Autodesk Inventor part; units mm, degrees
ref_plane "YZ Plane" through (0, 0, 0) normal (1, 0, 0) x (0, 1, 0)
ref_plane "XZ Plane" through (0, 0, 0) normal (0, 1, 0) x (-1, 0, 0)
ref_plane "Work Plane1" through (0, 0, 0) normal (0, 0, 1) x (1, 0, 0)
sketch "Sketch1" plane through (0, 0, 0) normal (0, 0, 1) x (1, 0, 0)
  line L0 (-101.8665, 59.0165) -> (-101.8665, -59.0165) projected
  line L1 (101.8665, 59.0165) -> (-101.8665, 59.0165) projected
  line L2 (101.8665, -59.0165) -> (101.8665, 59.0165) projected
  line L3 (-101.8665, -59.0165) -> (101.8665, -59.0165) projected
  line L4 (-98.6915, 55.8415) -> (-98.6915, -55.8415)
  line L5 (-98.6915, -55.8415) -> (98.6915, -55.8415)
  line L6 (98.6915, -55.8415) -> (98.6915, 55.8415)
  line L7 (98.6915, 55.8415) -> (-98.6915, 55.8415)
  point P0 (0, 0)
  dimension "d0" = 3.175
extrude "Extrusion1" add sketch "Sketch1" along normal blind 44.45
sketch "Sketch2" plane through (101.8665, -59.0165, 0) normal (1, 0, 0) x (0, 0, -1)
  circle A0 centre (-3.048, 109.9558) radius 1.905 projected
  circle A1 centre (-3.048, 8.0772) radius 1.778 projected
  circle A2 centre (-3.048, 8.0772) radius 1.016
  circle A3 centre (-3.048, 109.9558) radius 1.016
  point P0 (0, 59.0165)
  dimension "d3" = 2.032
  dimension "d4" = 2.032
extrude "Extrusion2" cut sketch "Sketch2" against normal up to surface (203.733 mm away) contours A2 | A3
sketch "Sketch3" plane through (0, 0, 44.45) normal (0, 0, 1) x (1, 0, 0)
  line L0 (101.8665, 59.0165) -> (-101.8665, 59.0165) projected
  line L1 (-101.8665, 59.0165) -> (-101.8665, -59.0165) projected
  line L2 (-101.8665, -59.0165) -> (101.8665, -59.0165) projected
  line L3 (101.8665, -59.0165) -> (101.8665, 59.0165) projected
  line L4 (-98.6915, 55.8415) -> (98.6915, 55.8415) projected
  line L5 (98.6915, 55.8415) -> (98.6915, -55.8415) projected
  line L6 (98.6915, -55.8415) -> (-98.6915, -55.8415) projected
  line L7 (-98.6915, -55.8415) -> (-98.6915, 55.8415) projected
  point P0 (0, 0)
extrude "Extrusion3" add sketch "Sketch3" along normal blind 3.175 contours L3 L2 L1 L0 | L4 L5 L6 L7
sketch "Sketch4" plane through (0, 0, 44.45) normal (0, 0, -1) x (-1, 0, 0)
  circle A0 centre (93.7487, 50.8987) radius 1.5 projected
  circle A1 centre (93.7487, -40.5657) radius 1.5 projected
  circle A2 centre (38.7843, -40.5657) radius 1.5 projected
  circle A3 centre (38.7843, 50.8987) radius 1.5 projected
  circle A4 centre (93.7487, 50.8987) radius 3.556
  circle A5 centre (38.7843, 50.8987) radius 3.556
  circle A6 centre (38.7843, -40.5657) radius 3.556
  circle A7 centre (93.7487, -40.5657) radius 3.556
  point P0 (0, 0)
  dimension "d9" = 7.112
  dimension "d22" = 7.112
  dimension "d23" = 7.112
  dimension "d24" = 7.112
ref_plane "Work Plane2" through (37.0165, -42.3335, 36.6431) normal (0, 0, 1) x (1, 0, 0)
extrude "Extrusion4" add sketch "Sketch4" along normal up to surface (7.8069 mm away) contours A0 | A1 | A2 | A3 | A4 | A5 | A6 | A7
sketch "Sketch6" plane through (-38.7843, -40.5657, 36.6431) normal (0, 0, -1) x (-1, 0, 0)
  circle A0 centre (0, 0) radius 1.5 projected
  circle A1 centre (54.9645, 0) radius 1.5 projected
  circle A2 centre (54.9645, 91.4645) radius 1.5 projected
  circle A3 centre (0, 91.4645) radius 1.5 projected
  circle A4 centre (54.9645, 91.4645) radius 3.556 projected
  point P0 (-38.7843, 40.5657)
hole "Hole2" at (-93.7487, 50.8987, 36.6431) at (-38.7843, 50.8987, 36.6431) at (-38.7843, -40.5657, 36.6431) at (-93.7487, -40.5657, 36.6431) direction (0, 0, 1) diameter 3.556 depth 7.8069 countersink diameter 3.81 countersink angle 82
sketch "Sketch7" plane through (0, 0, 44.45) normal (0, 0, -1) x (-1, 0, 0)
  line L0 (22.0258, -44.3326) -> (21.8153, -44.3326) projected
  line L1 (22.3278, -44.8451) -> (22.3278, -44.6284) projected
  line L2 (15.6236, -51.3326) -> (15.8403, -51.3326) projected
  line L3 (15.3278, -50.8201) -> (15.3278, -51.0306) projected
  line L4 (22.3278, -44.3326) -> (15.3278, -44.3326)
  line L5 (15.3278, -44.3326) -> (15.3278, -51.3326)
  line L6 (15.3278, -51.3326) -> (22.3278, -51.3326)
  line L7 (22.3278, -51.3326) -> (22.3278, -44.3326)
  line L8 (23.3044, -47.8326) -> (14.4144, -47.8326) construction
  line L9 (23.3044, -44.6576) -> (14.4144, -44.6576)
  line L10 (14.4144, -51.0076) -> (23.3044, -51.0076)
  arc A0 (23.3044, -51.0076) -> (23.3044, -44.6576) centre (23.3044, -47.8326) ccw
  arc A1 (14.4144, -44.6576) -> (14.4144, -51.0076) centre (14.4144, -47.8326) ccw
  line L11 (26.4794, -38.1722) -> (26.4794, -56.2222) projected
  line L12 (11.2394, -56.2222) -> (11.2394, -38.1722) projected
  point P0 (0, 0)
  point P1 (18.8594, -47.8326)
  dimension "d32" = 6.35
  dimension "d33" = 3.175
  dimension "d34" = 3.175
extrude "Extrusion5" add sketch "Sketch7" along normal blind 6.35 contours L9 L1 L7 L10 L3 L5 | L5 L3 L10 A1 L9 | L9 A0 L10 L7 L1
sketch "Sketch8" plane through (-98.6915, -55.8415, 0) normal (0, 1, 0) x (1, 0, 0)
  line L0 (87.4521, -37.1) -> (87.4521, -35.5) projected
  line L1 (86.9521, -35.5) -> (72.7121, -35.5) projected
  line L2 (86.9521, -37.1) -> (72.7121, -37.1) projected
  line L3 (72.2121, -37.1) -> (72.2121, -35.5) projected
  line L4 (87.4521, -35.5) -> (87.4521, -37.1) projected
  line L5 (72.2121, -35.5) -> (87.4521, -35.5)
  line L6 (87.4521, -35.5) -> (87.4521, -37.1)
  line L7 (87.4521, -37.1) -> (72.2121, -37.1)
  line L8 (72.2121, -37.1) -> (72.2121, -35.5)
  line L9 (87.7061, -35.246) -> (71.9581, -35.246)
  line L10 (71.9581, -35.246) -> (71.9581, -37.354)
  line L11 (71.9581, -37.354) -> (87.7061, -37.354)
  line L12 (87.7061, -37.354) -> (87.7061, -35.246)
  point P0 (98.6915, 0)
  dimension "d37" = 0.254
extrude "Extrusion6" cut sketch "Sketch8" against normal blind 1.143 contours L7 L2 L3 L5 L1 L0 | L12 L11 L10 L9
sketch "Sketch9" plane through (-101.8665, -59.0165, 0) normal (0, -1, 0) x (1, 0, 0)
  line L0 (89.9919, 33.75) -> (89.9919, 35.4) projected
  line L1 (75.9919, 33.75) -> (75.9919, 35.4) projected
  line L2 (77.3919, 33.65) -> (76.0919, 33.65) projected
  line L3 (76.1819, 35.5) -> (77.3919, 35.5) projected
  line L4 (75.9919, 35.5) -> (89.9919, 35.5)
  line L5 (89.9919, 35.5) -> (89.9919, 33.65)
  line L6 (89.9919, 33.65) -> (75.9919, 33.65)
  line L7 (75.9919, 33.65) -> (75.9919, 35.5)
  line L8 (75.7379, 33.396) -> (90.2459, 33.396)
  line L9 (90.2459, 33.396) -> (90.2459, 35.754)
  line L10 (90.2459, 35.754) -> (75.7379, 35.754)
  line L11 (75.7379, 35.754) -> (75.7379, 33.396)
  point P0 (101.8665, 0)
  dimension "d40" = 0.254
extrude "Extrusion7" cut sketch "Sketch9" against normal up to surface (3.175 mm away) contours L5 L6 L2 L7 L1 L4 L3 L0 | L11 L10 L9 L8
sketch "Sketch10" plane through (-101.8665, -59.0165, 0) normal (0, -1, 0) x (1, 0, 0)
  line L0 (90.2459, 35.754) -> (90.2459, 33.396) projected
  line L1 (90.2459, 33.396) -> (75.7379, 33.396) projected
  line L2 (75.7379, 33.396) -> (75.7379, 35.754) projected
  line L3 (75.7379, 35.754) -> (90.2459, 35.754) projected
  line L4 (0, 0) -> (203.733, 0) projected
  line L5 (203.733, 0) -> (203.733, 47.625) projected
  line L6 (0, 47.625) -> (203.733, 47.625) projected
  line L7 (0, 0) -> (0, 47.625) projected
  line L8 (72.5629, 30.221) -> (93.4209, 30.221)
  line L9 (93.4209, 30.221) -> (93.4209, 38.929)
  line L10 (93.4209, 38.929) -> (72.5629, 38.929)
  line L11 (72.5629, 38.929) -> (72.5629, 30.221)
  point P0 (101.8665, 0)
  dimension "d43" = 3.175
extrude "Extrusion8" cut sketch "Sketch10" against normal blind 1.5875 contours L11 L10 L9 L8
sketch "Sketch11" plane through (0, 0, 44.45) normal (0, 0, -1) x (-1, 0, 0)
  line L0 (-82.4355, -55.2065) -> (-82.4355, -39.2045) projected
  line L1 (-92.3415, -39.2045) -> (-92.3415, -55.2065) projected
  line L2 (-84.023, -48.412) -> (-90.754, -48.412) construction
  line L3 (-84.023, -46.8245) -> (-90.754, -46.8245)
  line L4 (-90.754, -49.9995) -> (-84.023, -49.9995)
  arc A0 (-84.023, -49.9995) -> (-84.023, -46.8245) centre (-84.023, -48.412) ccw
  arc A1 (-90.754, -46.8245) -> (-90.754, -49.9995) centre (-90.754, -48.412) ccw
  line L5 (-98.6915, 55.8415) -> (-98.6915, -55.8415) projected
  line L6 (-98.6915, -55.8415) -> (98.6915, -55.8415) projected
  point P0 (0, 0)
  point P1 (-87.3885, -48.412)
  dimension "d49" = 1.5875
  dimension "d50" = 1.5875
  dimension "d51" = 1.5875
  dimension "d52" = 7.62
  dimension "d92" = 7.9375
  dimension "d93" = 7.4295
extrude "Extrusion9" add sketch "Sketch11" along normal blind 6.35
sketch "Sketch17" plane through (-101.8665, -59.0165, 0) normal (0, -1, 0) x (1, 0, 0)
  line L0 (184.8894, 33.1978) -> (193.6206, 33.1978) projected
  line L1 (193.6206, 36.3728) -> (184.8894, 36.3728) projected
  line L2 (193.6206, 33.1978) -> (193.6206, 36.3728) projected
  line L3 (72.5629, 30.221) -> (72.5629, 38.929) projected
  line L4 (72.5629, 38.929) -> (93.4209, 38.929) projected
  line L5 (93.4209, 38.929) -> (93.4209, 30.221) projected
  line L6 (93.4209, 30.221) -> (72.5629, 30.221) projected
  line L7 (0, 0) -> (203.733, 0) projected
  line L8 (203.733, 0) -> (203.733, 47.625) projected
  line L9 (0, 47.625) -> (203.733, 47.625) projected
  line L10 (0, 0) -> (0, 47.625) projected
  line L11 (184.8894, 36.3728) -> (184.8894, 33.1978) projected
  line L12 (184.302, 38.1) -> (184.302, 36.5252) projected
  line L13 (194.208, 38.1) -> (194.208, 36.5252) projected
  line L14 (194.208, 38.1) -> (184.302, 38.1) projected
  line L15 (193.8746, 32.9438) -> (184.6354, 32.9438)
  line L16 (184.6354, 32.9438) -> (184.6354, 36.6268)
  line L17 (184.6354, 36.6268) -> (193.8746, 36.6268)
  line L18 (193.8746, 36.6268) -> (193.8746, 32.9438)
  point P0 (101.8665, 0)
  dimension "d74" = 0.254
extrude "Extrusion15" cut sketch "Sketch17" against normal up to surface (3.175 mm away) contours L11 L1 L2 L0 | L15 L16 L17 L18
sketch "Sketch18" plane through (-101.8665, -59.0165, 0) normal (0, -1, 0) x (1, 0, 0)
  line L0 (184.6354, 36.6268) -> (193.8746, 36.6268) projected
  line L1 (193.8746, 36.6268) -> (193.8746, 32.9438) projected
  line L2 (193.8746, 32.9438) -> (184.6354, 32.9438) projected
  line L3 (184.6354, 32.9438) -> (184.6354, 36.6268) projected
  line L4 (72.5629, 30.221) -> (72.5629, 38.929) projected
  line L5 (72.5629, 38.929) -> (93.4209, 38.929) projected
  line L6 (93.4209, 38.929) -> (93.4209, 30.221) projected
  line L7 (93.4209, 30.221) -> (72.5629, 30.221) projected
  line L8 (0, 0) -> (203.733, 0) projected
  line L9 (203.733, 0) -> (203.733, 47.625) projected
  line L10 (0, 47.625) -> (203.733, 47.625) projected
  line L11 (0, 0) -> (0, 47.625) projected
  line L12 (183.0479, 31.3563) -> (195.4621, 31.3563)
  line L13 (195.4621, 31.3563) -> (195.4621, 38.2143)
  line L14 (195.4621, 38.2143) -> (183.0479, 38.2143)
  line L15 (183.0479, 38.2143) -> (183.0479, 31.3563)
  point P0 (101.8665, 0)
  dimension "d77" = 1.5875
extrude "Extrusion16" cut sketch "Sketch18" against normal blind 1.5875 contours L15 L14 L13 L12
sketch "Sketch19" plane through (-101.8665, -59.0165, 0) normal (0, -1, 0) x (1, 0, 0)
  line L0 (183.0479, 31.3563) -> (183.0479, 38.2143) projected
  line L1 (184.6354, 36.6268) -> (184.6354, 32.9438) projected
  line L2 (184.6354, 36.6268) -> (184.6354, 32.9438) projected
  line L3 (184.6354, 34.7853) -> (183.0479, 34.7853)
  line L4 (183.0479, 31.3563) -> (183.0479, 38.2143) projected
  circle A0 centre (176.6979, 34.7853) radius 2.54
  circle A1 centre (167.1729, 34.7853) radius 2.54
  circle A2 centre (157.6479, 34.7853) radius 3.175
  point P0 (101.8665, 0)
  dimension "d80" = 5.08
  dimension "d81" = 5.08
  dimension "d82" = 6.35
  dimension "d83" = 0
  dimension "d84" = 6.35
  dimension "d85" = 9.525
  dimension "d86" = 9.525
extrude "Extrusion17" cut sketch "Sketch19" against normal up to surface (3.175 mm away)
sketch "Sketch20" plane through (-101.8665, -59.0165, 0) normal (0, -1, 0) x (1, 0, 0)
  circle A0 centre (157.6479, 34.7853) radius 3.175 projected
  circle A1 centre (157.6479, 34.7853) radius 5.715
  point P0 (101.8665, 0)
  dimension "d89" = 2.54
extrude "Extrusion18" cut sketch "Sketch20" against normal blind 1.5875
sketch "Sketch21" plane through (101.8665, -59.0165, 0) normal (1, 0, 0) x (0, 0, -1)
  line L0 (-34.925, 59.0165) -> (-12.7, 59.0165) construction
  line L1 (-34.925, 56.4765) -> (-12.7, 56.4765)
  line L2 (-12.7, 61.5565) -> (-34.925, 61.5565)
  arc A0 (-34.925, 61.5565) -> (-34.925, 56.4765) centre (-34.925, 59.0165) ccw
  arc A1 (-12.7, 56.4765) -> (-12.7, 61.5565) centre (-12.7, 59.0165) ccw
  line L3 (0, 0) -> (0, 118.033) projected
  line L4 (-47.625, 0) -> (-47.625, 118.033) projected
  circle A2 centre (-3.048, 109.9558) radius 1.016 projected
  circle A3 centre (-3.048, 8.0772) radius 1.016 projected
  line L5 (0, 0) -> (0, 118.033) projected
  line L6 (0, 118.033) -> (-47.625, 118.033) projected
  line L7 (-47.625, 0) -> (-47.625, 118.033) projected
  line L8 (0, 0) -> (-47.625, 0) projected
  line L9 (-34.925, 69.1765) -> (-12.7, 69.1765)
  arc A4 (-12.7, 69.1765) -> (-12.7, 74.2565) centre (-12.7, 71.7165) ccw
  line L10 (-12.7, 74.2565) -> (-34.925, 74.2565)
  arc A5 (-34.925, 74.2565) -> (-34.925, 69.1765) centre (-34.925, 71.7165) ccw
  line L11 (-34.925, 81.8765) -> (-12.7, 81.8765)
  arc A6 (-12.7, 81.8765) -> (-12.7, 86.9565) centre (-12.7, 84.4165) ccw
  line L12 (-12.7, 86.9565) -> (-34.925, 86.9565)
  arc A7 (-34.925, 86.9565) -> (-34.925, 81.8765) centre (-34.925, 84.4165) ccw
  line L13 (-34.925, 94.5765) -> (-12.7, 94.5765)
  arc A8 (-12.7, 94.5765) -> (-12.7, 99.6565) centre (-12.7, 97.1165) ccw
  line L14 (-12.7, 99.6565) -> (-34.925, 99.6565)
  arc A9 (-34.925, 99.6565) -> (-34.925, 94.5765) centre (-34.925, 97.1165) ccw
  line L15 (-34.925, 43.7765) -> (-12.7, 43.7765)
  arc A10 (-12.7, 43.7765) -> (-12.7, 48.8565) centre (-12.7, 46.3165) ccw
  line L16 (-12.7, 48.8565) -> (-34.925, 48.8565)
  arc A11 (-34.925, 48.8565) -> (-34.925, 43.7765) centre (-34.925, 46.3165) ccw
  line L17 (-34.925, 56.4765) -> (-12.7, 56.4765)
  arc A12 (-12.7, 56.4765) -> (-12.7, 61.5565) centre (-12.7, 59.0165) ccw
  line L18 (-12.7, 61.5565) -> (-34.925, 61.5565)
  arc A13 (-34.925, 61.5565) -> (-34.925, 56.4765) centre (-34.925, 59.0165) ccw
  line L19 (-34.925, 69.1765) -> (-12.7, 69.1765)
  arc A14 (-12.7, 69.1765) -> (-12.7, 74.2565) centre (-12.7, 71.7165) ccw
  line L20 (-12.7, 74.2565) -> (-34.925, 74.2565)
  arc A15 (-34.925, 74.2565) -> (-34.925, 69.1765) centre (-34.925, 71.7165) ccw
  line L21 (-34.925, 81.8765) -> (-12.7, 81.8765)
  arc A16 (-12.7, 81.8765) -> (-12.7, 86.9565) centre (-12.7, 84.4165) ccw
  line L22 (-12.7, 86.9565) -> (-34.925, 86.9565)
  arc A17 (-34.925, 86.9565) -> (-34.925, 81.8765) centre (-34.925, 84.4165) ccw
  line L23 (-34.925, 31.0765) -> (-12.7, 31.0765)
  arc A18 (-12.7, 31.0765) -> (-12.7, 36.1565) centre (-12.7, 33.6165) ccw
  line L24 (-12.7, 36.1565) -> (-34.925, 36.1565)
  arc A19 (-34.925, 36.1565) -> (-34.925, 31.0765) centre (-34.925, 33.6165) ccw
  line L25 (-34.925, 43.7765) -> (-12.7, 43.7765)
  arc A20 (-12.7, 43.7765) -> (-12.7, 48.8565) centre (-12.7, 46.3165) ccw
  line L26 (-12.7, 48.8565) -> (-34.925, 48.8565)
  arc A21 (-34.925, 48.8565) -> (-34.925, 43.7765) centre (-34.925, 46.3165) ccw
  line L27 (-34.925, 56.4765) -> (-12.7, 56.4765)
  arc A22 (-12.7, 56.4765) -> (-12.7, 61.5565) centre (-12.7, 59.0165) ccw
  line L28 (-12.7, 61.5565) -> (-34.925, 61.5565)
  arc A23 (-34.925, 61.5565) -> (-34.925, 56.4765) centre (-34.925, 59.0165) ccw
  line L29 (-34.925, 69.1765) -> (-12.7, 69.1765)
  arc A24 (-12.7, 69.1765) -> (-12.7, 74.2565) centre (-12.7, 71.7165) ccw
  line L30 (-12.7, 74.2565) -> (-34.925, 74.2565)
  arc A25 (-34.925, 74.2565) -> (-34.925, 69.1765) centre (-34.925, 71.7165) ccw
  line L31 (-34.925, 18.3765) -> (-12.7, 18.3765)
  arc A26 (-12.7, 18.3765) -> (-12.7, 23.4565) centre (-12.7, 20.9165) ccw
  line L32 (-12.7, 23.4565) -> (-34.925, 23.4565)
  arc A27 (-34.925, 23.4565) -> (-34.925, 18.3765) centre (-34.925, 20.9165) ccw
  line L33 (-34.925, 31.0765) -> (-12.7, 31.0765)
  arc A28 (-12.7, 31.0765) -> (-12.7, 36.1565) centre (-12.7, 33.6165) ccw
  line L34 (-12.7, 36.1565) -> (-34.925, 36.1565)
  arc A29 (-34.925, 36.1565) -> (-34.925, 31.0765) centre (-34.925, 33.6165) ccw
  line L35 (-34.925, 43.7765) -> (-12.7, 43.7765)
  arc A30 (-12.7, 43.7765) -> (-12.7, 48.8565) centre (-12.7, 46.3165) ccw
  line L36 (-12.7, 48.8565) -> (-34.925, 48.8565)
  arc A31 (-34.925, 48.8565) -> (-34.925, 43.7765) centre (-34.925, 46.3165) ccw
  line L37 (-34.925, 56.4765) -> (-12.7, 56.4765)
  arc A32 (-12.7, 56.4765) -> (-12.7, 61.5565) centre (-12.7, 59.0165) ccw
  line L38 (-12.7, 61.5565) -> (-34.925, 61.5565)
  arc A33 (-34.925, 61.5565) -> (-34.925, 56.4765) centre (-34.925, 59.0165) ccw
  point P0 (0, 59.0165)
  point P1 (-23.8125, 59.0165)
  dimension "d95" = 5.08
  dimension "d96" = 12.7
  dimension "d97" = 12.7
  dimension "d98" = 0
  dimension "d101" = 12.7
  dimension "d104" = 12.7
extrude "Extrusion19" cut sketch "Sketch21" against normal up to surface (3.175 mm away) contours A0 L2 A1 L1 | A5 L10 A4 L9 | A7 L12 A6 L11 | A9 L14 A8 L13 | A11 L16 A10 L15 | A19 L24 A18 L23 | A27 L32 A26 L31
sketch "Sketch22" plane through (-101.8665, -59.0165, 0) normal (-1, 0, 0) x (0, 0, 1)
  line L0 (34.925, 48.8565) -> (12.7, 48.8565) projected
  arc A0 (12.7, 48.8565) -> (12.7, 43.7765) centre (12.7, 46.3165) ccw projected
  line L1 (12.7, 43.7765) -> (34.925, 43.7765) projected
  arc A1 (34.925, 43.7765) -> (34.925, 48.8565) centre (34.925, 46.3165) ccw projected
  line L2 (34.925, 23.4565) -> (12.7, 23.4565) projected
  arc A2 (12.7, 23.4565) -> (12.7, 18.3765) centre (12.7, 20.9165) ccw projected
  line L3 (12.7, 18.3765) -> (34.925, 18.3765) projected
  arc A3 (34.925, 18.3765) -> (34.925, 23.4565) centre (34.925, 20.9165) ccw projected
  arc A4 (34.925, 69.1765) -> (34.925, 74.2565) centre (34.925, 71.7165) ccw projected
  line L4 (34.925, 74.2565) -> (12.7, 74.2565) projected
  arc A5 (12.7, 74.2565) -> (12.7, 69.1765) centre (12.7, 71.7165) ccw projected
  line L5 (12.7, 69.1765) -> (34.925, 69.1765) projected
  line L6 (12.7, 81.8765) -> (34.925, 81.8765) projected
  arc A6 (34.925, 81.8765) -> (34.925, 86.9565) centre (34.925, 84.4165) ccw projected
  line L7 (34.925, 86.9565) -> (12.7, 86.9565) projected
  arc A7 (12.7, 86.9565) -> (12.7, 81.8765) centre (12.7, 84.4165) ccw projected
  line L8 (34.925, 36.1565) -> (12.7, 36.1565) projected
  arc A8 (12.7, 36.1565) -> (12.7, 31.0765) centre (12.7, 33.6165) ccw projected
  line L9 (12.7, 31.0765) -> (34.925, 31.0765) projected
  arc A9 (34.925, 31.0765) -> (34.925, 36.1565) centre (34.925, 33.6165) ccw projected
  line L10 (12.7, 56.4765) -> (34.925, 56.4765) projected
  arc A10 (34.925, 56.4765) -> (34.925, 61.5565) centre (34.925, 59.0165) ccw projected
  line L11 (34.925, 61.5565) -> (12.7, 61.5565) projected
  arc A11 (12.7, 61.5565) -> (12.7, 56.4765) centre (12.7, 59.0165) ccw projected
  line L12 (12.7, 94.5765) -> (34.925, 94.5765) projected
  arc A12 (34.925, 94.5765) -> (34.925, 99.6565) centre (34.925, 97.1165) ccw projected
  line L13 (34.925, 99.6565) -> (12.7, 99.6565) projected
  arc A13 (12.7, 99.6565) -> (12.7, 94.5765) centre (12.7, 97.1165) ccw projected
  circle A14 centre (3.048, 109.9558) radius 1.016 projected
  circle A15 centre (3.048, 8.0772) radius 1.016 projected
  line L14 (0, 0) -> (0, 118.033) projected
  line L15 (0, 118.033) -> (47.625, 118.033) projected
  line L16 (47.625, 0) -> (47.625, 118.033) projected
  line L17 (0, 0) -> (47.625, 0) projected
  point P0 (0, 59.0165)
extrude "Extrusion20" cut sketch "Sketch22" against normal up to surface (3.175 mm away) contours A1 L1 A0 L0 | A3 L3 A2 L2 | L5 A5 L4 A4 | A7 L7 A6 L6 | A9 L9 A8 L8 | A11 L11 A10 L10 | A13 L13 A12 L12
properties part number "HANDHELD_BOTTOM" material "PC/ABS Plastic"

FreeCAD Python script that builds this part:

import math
import FreeCAD as App
import Part
import Sketcher
Q = App.Units.Quantity


def add_polygon(sketch, points):
    """Adds a closed chain of lines whose ends are joined by coincident constraints."""
    first, n = sketch.GeometryCount, len(points)
    for a, b in zip(points, points[1:] + points[:1]):
        sketch.addGeometry(Part.LineSegment(App.Vector(*a, 0), App.Vector(*b, 0)), False)
    for i in range(n):
        sketch.addConstraint(Sketcher.Constraint("Coincident", first + i, 2, first + (i + 1) % n, 1))

doc = App.newDocument("Part")
body = doc.addObject("PartDesign::Body", "Body")

sketch1 = body.newObject("Sketcher::SketchObject", "Sketch")
sketch1.AttachmentSupport = (doc.getObject("XY_Plane"), [""])
sketch1.MapMode = "FlatFace"
add_polygon(sketch1, [(102, 59), (-102, 59), (-102, -59), (102, -59)])
add_polygon(sketch1, [(-99, -56), (-99, 56), (99, 56), (99, -56)])
sketch1.addConstraint(Sketcher.Constraint("Horizontal", 0))
sketch1.addConstraint(Sketcher.Constraint("Vertical", 1))
sketch1.addConstraint(Sketcher.Constraint("Horizontal", 2))
sketch1.addConstraint(Sketcher.Constraint("Vertical", 3))
sketch1.addConstraint(Sketcher.Constraint("Vertical", 4))
sketch1.addConstraint(Sketcher.Constraint("Horizontal", 5))
sketch1.addConstraint(Sketcher.Constraint("Vertical", 6))
sketch1.addConstraint(Sketcher.Constraint("Horizontal", 7))
sketch1.addConstraint(Sketcher.Constraint("Symmetric", 0, 2, 2, 2, -1, 1))
sketch1.addConstraint(Sketcher.Constraint("Symmetric", 4, 2, 6, 2, -1, 1))
sketch1.addConstraint(Sketcher.Constraint("DistanceX", 0, 2, 4, 2, Q("0.125 in")))
sketch1.addConstraint(Sketcher.Constraint("DistanceY", 4, 2, 0, 2, Q("0.125 in")))
sketch1.addConstraint(Sketcher.Constraint("DistanceX", 0, 2, 0, 1, 203.733))
sketch1.addConstraint(Sketcher.Constraint("DistanceY", 1, 2, 1, 1, 118.033))
pad1 = body.newObject("PartDesign::Pad", "Pad")
pad1.Profile = sketch1
pad1.Length = Q("1.75 in")

sketch2 = body.newObject("Sketcher::SketchObject", "Sketch001")
sketch2.AttachmentSupport = (doc.getObject("YZ_Plane"), [""])
sketch2.MapMode = "FlatFace"
sketch2.AttachmentOffset = App.Placement(App.Vector(0, 0, 4.0104921 * 25.4), App.Rotation())
sketch2.addGeometry(Part.Circle(App.Vector(-50.9, 3, 0), App.Vector(0, 0, 1), 1), False)
sketch2.addGeometry(Part.Circle(App.Vector(50.9, 3, 0), App.Vector(0, 0, 1), 1), False)
sketch2.addConstraint(Sketcher.Constraint("Equal", 0, 1))
sketch2.addConstraint(Sketcher.Constraint("Symmetric", 0, 3, 1, 3, -2))
sketch2.addConstraint(Sketcher.Constraint("Diameter", 0, Q("0.08 in")))
sketch2.addConstraint(Sketcher.Constraint("DistanceY", -1, 1, 0, 3, Q("0.12 in")))
sketch2.addConstraint(Sketcher.Constraint("DistanceX", 0, 3, -1, 1, 50.9393))
pocket1 = body.newObject("PartDesign::Pocket", "Pocket")
pocket1.Profile = sketch2
pocket1.Length = 203.733

sketch3 = body.newObject("Sketcher::SketchObject", "Sketch002")
sketch3.AttachmentSupport = (doc.getObject("XY_Plane"), [""])
sketch3.MapMode = "FlatFace"
sketch3.AttachmentOffset = App.Placement(App.Vector(0, 0, 1.75 * 25.4), App.Rotation())
add_polygon(sketch3, [(102, -59), (102, 59), (-102, 59), (-102, -59)])
sketch3.addConstraint(Sketcher.Constraint("Vertical", 0))
sketch3.addConstraint(Sketcher.Constraint("Horizontal", 1))
sketch3.addConstraint(Sketcher.Constraint("Vertical", 2))
sketch3.addConstraint(Sketcher.Constraint("Horizontal", 3))
sketch3.addConstraint(Sketcher.Constraint("Symmetric", 0, 2, 2, 2, -1, 1))
sketch3.addConstraint(Sketcher.Constraint("DistanceX", 1, 2, 1, 1, 203.733))
sketch3.addConstraint(Sketcher.Constraint("DistanceY", 0, 1, 0, 2, 118.033))
pad2 = body.newObject("PartDesign::Pad", "Pad001")
pad2.Profile = sketch3
pad2.Length = Q("0.125 in")

sketch4 = body.newObject("Sketcher::SketchObject", "Sketch003")
sketch4.AttachmentSupport = (doc.getObject("XY_Plane"), [""])
sketch4.MapMode = "FlatFace"
sketch4.AttachmentOffset = App.Placement(App.Vector(0, 0, 1.75 * 25.4), App.Rotation())
sketch4.addGeometry(Part.Circle(App.Vector(-93.7, 50.9, 0), App.Vector(0, 0, 1), 3.6), False)
sketch4.addGeometry(Part.Circle(App.Vector(-93.7, -40.6, 0), App.Vector(0, 0, 1), 3.6), False)
sketch4.addGeometry(Part.Circle(App.Vector(-38.8, -40.6, 0), App.Vector(0, 0, 1), 3.6), False)
sketch4.addGeometry(Part.Circle(App.Vector(-38.8, 50.9, 0), App.Vector(0, 0, 1), 3.6), False)
sketch4.addConstraint(Sketcher.Constraint("Equal", 0, 1))
sketch4.addConstraint(Sketcher.Constraint("Equal", 1, 2))
sketch4.addConstraint(Sketcher.Constraint("Equal", 2, 3))
sketch4.addConstraint(Sketcher.Constraint("Horizontal", 1, 3, 2, 3))
sketch4.addConstraint(Sketcher.Constraint("Horizontal", 0, 3, 3, 3))
sketch4.addConstraint(Sketcher.Constraint("Vertical", 0, 3, 1, 3))
sketch4.addConstraint(Sketcher.Constraint("Vertical", 2, 3, 3, 3))
sketch4.addConstraint(Sketcher.Constraint("Diameter", 0, Q("0.28 in")))
sketch4.addConstraint(Sketcher.Constraint("DistanceX", 0, 3, -1, 1, Q("3.6909 in")))
sketch4.addConstraint(Sketcher.Constraint("DistanceY", -1, 1, 0, 3, 50.8987))
sketch4.addConstraint(Sketcher.Constraint("DistanceY", 1, 3, -1, 1, 40.5657))
sketch4.addConstraint(Sketcher.Constraint("DistanceX", 2, 3, -1, 1, 38.7843))
pad3 = body.newObject("PartDesign::Pad", "Pad002")
pad3.Profile = sketch4
pad3.Length = 7.8069
pad3.Reversed = True

sketch5 = body.newObject("Sketcher::SketchObject", "Sketch004")
sketch5.AttachmentSupport = (doc.getObject("XY_Plane"), [""])
sketch5.MapMode = "FlatFace"
sketch5.AttachmentOffset = App.Placement(App.Vector(0, 0, 36.6431), App.Rotation())
sketch5.addGeometry(Part.Circle(App.Vector(-93.7, 50.9, 0), App.Vector(0, 0, 1), 1.8), False)
sketch5.addGeometry(Part.Circle(App.Vector(-38.8, 50.9, 0), App.Vector(0, 0, 1), 1.8), False)
sketch5.addGeometry(Part.Circle(App.Vector(-38.8, -40.6, 0), App.Vector(0, 0, 1), 1.8), False)
sketch5.addGeometry(Part.Circle(App.Vector(-93.7, -40.6, 0), App.Vector(0, 0, 1), 1.8), False)
sketch5.addConstraint(Sketcher.Constraint("Equal", 0, 1))
sketch5.addConstraint(Sketcher.Constraint("Equal", 1, 2))
sketch5.addConstraint(Sketcher.Constraint("Equal", 2, 3))
sketch5.addConstraint(Sketcher.Constraint("Horizontal", 0, 3, 1, 3))
sketch5.addConstraint(Sketcher.Constraint("Horizontal", 2, 3, 3, 3))
sketch5.addConstraint(Sketcher.Constraint("Vertical", 1, 3, 2, 3))
sketch5.addConstraint(Sketcher.Constraint("Vertical", 0, 3, 3, 3))
sketch5.addConstraint(Sketcher.Constraint("Diameter", 0, Q("0.14 in")))
sketch5.addConstraint(Sketcher.Constraint("DistanceX", 0, 3, -1, 1, Q("3.6909 in")))
sketch5.addConstraint(Sketcher.Constraint("DistanceY", -1, 1, 0, 3, 50.8987))
sketch5.addConstraint(Sketcher.Constraint("DistanceX", 1, 3, -1, 1, 38.7843))
sketch5.addConstraint(Sketcher.Constraint("DistanceY", 2, 3, -1, 1, 40.5657))
doc.recompute()
hole = body.newObject("PartDesign::Hole", "Hole")
hole.Profile = sketch5
hole.ThreadType = "None"
hole.Diameter = Q("0.14 in")
hole.DepthType = "Dimension"
hole.Depth = 7.8069
hole.DrillPoint = "Flat"
hole.HoleCutType = "Countersink"
hole.HoleCutDiameter = Q("0.15 in")
hole.HoleCutCountersinkAngle = 82
hole.Reversed = True

sketch6 = body.newObject("Sketcher::SketchObject", "Sketch005")
sketch6.AttachmentSupport = (doc.getObject("XY_Plane"), [""])
sketch6.MapMode = "FlatFace"
sketch6.AttachmentOffset = App.Placement(App.Vector(0, 0, 1.75 * 25.4), App.Rotation())
sketch6.addGeometry(Part.ArcOfCircle(Part.Circle(App.Vector(-14.4, -47.8, 0), App.Vector(0, 0, 1), 3.2), math.radians(-90), math.radians(90)), False)
sketch6.addGeometry(Part.LineSegment(App.Vector(-14.4, -51, 0), App.Vector(-23.3, -51, 0)), False)
sketch6.addGeometry(Part.ArcOfCircle(Part.Circle(App.Vector(-23.3, -47.8, 0), App.Vector(0, 0, 1), 3.2), math.radians(90), math.radians(270)), False)
sketch6.addGeometry(Part.LineSegment(App.Vector(-23.3, -44.7, 0), App.Vector(-14.4, -44.7, 0)), False)
sketch6.addConstraint(Sketcher.Constraint("Tangent", 0, 1, 1, 1))
sketch6.addConstraint(Sketcher.Constraint("Tangent", 1, 2, 2, 2))
sketch6.addConstraint(Sketcher.Constraint("Tangent", 2, 1, 3, 1))
sketch6.addConstraint(Sketcher.Constraint("Tangent", 3, 2, 0, 2))
sketch6.addConstraint(Sketcher.Constraint("Horizontal", 1))
sketch6.addConstraint(Sketcher.Constraint("Horizontal", 3))
sketch6.addConstraint(Sketcher.Constraint("Radius", 0, Q("0.125 in")))
sketch6.addConstraint(Sketcher.Constraint("DistanceX", 1, 2, 1, 1, Q("0.35 in")))
sketch6.addConstraint(Sketcher.Constraint("DistanceX", 0, 3, -1, 1, Q("0.5675 in")))
sketch6.addConstraint(Sketcher.Constraint("DistanceY", 0, 3, -1, 1, 47.8326))
pad4 = body.newObject("PartDesign::Pad", "Pad003")
pad4.Profile = sketch6
pad4.Length = Q("0.25 in")
pad4.Reversed = True

sketch7 = body.newObject("Sketcher::SketchObject", "Sketch006")
sketch7.AttachmentSupport = (doc.getObject("XZ_Plane"), [""])
sketch7.MapMode = "FlatFace"
sketch7.AttachmentOffset = App.Placement(App.Vector(0, 0, 55.8415), App.Rotation())
add_polygon(sketch7, [(-11, 37.4), (-11, 35.2), (-26.7, 35.2), (-26.7, 37.4)])
sketch7.addConstraint(Sketcher.Constraint("Vertical", 0))
sketch7.addConstraint(Sketcher.Constraint("Horizontal", 1))
sketch7.addConstraint(Sketcher.Constraint("Vertical", 2))
sketch7.addConstraint(Sketcher.Constraint("Horizontal", 3))
sketch7.addConstraint(Sketcher.Constraint("DistanceX", 1, 2, 1, 1, Q("0.62 in")))
sketch7.addConstraint(Sketcher.Constraint("DistanceY", 0, 2, 0, 1, Q("0.083 in")))
sketch7.addConstraint(Sketcher.Constraint("DistanceX", 0, 2, -1, 1, Q("0.4325 in")))
sketch7.addConstraint(Sketcher.Constraint("DistanceY", -1, 1, 0, 2, 35.246))
pocket2 = body.newObject("PartDesign::Pocket", "Pocket001")
pocket2.Profile = sketch7
pocket2.Length = Q("0.045 in")
pocket2.Reversed = True

sketch8 = body.newObject("Sketcher::SketchObject", "Sketch007")
sketch8.AttachmentSupport = (doc.getObject("XZ_Plane"), [""])
sketch8.MapMode = "FlatFace"
sketch8.AttachmentOffset = App.Placement(App.Vector(0, 0, 59.0165), App.Rotation())
add_polygon(sketch8, [(-26.1, 35.8), (-26.1, 33.4), (-11.6, 33.4), (-11.6, 35.8)])
sketch8.addConstraint(Sketcher.Constraint("Vertical", 0))
sketch8.addConstraint(Sketcher.Constraint("Horizontal", 1))
sketch8.addConstraint(Sketcher.Constraint("Vertical", 2))
sketch8.addConstraint(Sketcher.Constraint("Horizontal", 3))
sketch8.addConstraint(Sketcher.Constraint("DistanceX", 1, 1, 1, 2, 14.508))
sketch8.addConstraint(Sketcher.Constraint("DistanceY", 0, 2, 0, 1, 2.358))
sketch8.addConstraint(Sketcher.Constraint("DistanceY", -1, 1, 0, 2, Q("1.3148 in")))
sketch8.addConstraint(Sketcher.Constraint("DistanceX", 1, 2, -1, 1, Q("0.4575 in")))
pocket3 = body.newObject("PartDesign::Pocket", "Pocket002")
pocket3.Profile = sketch8
pocket3.Length = Q("0.125 in")

sketch9 = body.newObject("Sketcher::SketchObject", "Sketch008")
sketch9.AttachmentSupport = (doc.getObject("XZ_Plane"), [""])
sketch9.MapMode = "FlatFace"
sketch9.AttachmentOffset = App.Placement(App.Vector(0, 0, 59.0165), App.Rotation())
add_polygon(sketch9, [(-29.3, 38.9), (-29.3, 30.2), (-8.4, 30.2), (-8.4, 38.9)])
add_polygon(sketch9, [(-26.1, 35.8), (-11.6, 35.8), (-11.6, 33.4), (-26.1, 33.4)])
sketch9.addConstraint(Sketcher.Constraint("Vertical", 0))
sketch9.addConstraint(Sketcher.Constraint("Horizontal", 1))
sketch9.addConstraint(Sketcher.Constraint("Vertical", 2))
sketch9.addConstraint(Sketcher.Constraint("Horizontal", 3))
sketch9.addConstraint(Sketcher.Constraint("Horizontal", 4))
sketch9.addConstraint(Sketcher.Constraint("Vertical", 5))
sketch9.addConstraint(Sketcher.Constraint("Horizontal", 6))
sketch9.addConstraint(Sketcher.Constraint("Vertical", 7))
sketch9.addConstraint(Sketcher.Constraint("DistanceX", 4, 2, 2, 2, Q("0.125 in")))
sketch9.addConstraint(Sketcher.Constraint("DistanceY", 4, 2, 2, 2, Q("0.125 in")))
sketch9.addConstraint(Sketcher.Constraint("DistanceY", 1, 2, 5, 2, Q("0.125 in")))
sketch9.addConstraint(Sketcher.Constraint("DistanceX", 0, 2, 6, 2, Q("0.125 in")))
sketch9.addConstraint(Sketcher.Constraint("DistanceX", 1, 1, 1, 2, 20.858))
sketch9.addConstraint(Sketcher.Constraint("DistanceY", 0, 2, 0, 1, 8.708))
sketch9.addConstraint(Sketcher.Constraint("DistanceY", -1, 1, 0, 2, Q("1.1898 in")))
sketch9.addConstraint(Sketcher.Constraint("DistanceX", 1, 2, -1, 1, Q("0.3325 in")))
pocket4 = body.newObject("PartDesign::Pocket", "Pocket003")
pocket4.Profile = sketch9
pocket4.Length = Q("0.0625 in")

sketch10 = body.newObject("Sketcher::SketchObject", "Sketch009")
sketch10.AttachmentSupport = (doc.getObject("XY_Plane"), [""])
sketch10.MapMode = "FlatFace"
sketch10.AttachmentOffset = App.Placement(App.Vector(0, 0, 1.75 * 25.4), App.Rotation())
sketch10.addGeometry(Part.ArcOfCircle(Part.Circle(App.Vector(84, -48.4, 0), App.Vector(0, 0, 1), 1.6), math.radians(90), math.radians(270)), False)
sketch10.addGeometry(Part.LineSegment(App.Vector(84, -46.8, 0), App.Vector(90.8, -46.8, 0)), False)
sketch10.addGeometry(Part.ArcOfCircle(Part.Circle(App.Vector(90.8, -48.4, 0), App.Vector(0, 0, 1), 1.6), math.radians(-90), math.radians(90)), False)
sketch10.addGeometry(Part.LineSegment(App.Vector(90.8, -50, 0), App.Vector(84, -50, 0)), False)
sketch10.addConstraint(Sketcher.Constraint("Tangent", 0, 1, 1, 1))
sketch10.addConstraint(Sketcher.Constraint("Tangent", 1, 2, 2, 2))
sketch10.addConstraint(Sketcher.Constraint("Tangent", 2, 1, 3, 1))
sketch10.addConstraint(Sketcher.Constraint("Tangent", 3, 2, 0, 2))
sketch10.addConstraint(Sketcher.Constraint("Horizontal", 1))
sketch10.addConstraint(Sketcher.Constraint("Horizontal", 3))
sketch10.addConstraint(Sketcher.Constraint("Radius", 0, Q("0.0625 in")))
sketch10.addConstraint(Sketcher.Constraint("DistanceX", 1, 1, 1, 2, Q("0.265 in")))
sketch10.addConstraint(Sketcher.Constraint("DistanceX", -1, 1, 0, 3, Q("3.308 in")))
sketch10.addConstraint(Sketcher.Constraint("DistanceY", 0, 3, -1, 1, 48.412))
pad5 = body.newObject("PartDesign::Pad", "Pad004")
pad5.Profile = sketch10
pad5.Length = Q("0.25 in")
pad5.Reversed = True

sketch11 = body.newObject("Sketcher::SketchObject", "Sketch010")
sketch11.AttachmentSupport = (doc.getObject("XZ_Plane"), [""])
sketch11.MapMode = "FlatFace"
sketch11.AttachmentOffset = App.Placement(App.Vector(0, 0, 59.0165), App.Rotation())
add_polygon(sketch11, [(82.8, 32.9), (92, 32.9), (92, 36.6), (82.8, 36.6)])
sketch11.addConstraint(Sketcher.Constraint("Horizontal", 0))
sketch11.addConstraint(Sketcher.Constraint("Vertical", 1))
sketch11.addConstraint(Sketcher.Constraint("Horizontal", 2))
sketch11.addConstraint(Sketcher.Constraint("Vertical", 3))
sketch11.addConstraint(Sketcher.Constraint("DistanceY", 1, 1, 1, 2, Q("0.145 in")))
sketch11.addConstraint(Sketcher.Constraint("DistanceY", -1, 1, 0, 2, Q("1.297 in")))
sketch11.addConstraint(Sketcher.Constraint("DistanceX", 0, 1, 0, 2, 9.2392))
sketch11.addConstraint(Sketcher.Constraint("DistanceX", -1, 1, 0, 2, 92.008))
pocket5 = body.newObject("PartDesign::Pocket", "Pocket004")
pocket5.Profile = sketch11
pocket5.Length = Q("0.125 in")

sketch12 = body.newObject("Sketcher::SketchObject", "Sketch011")
sketch12.AttachmentSupport = (doc.getObject("XZ_Plane"), [""])
sketch12.MapMode = "FlatFace"
sketch12.AttachmentOffset = App.Placement(App.Vector(0, 0, 59.0165), App.Rotation())
add_polygon(sketch12, [(81.2, 38.2), (81.2, 31.4), (93.6, 31.4), (93.6, 38.2)])
add_polygon(sketch12, [(82.8, 32.9), (82.8, 36.6), (92, 36.6), (92, 32.9)])
sketch12.addConstraint(Sketcher.Constraint("Vertical", 0))
sketch12.addConstraint(Sketcher.Constraint("Horizontal", 1))
sketch12.addConstraint(Sketcher.Constraint("Vertical", 2))
sketch12.addConstraint(Sketcher.Constraint("Horizontal", 3))
sketch12.addConstraint(Sketcher.Constraint("Vertical", 4))
sketch12.addConstraint(Sketcher.Constraint("Horizontal", 5))
sketch12.addConstraint(Sketcher.Constraint("Vertical", 6))
sketch12.addConstraint(Sketcher.Constraint("Horizontal", 7))
sketch12.addConstraint(Sketcher.Constraint("DistanceX", 3, 2, 4, 2, Q("0.0625 in")))
sketch12.addConstraint(Sketcher.Constraint("DistanceY", 4, 2, 3, 2, Q("0.0625 in")))
sketch12.addConstraint(Sketcher.Constraint("DistanceX", 5, 2, 2, 2, Q("0.0625 in")))
sketch12.addConstraint(Sketcher.Constraint("DistanceY", 1, 2, 6, 2, Q("0.0625 in")))
sketch12.addConstraint(Sketcher.Constraint("DistanceY", 0, 2, 0, 1, Q("0.27 in")))
sketch12.addConstraint(Sketcher.Constraint("DistanceY", -1, 1, 4, 2, Q("1.442 in")))
sketch12.addConstraint(Sketcher.Constraint("DistanceX", 1, 1, 1, 2, 12.4142))
sketch12.addConstraint(Sketcher.Constraint("DistanceX", -1, 1, 0, 2, 81.1814))
pocket6 = body.newObject("PartDesign::Pocket", "Pocket005")
pocket6.Profile = sketch12
pocket6.Length = Q("0.0625 in")

sketch13 = body.newObject("Sketcher::SketchObject", "Sketch012")
sketch13.AttachmentSupport = (doc.getObject("XZ_Plane"), [""])
sketch13.MapMode = "FlatFace"
sketch13.AttachmentOffset = App.Placement(App.Vector(0, 0, 59.0165), App.Rotation())
sketch13.addGeometry(Part.Circle(App.Vector(74.8, 34.8, 0), App.Vector(0, 0, 1), 2.5), False)
sketch13.addGeometry(Part.Circle(App.Vector(65.3, 34.8, 0), App.Vector(0, 0, 1), 2.5), False)
sketch13.addGeometry(Part.Circle(App.Vector(55.8, 34.8, 0), App.Vector(0, 0, 1), 3.2), False)
sketch13.addConstraint(Sketcher.Constraint("Equal", 0, 1))
sketch13.addConstraint(Sketcher.Constraint("Horizontal", 0, 3, 1, 3))
sketch13.addConstraint(Sketcher.Constraint("Horizontal", 1, 3, 2, 3))
sketch13.addConstraint(Sketcher.Constraint("Diameter", 0, Q("0.2 in")))
sketch13.addConstraint(Sketcher.Constraint("Diameter", 2, Q("0.25 in")))
sketch13.addConstraint(Sketcher.Constraint("DistanceX", 1, 3, 0, 3, Q("0.375 in")))
sketch13.addConstraint(Sketcher.Constraint("DistanceX", 2, 3, 1, 3, Q("0.375 in")))
sketch13.addConstraint(Sketcher.Constraint("DistanceY", -1, 1, 0, 3, Q("1.3695 in")))
sketch13.addConstraint(Sketcher.Constraint("DistanceX", -1, 1, 0, 3, 74.8314))
pocket7 = body.newObject("PartDesign::Pocket", "Pocket006")
pocket7.Profile = sketch13
pocket7.Length = Q("0.125 in")

sketch14 = body.newObject("Sketcher::SketchObject", "Sketch013")
sketch14.AttachmentSupport = (doc.getObject("XZ_Plane"), [""])
sketch14.MapMode = "FlatFace"
sketch14.AttachmentOffset = App.Placement(App.Vector(0, 0, 59.0165), App.Rotation())
sketch14.addGeometry(Part.Circle(App.Vector(55.8, 34.8, 0), App.Vector(0, 0, 1), 5.7), False)
sketch14.addGeometry(Part.Circle(App.Vector(55.8, 34.8, 0), App.Vector(0, 0, 1), 3.2), False)
sketch14.addConstraint(Sketcher.Constraint("Coincident", 1, 3, 0, 3))
sketch14.addConstraint(Sketcher.Constraint("Diameter", 0, Q("0.45 in")))
sketch14.addConstraint(Sketcher.Constraint("Diameter", 1, Q("0.25 in")))
sketch14.addConstraint(Sketcher.Constraint("DistanceY", -1, 1, 0, 3, Q("1.3695 in")))
sketch14.addConstraint(Sketcher.Constraint("DistanceX", -1, 1, 0, 3, 55.7814))
pocket8 = body.newObject("PartDesign::Pocket", "Pocket007")
pocket8.Profile = sketch14
pocket8.Length = Q("0.0625 in")

sketch15 = body.newObject("Sketcher::SketchObject", "Sketch014")
sketch15.AttachmentSupport = (doc.getObject("YZ_Plane"), [""])
sketch15.MapMode = "FlatFace"
sketch15.AttachmentOffset = App.Placement(App.Vector(0, 0, 4.0104921 * 25.4), App.Rotation())
sketch15.addGeometry(Part.ArcOfCircle(Part.Circle(App.Vector(0, 34.9, 0), App.Vector(0, 0, 1), 2.5), math.radians(0), math.radians(180)), False)
sketch15.addGeometry(Part.LineSegment(App.Vector(-2.5, 34.9, 0), App.Vector(-2.5, 12.7, 0)), False)
sketch15.addGeometry(Part.ArcOfCircle(Part.Circle(App.Vector(0, 12.7, 0), App.Vector(0, 0, 1), 2.5), math.radians(180), math.radians(360)), False)
sketch15.addGeometry(Part.LineSegment(App.Vector(2.5, 12.7, 0), App.Vector(2.5, 34.9, 0)), False)
sketch15.addGeometry(Part.ArcOfCircle(Part.Circle(App.Vector(12.7, 34.9, 0), App.Vector(0, 0, 1), 2.5), math.radians(0), math.radians(180)), False)
sketch15.addGeometry(Part.LineSegment(App.Vector(10.2, 34.9, 0), App.Vector(10.2, 12.7, 0)), False)
sketch15.addGeometry(Part.ArcOfCircle(Part.Circle(App.Vector(12.7, 12.7, 0), App.Vector(0, 0, 1), 2.5), math.radians(180), math.radians(360)), False)
sketch15.addGeometry(Part.LineSegment(App.Vector(15.2, 12.7, 0), App.Vector(15.2, 34.9, 0)), False)
sketch15.addGeometry(Part.ArcOfCircle(Part.Circle(App.Vector(25.4, 34.9, 0), App.Vector(0, 0, 1), 2.5), math.radians(0), math.radians(180)), False)
sketch15.addGeometry(Part.LineSegment(App.Vector(22.9, 34.9, 0), App.Vector(22.9, 12.7, 0)), False)
sketch15.addGeometry(Part.ArcOfCircle(Part.Circle(App.Vector(25.4, 12.7, 0), App.Vector(0, 0, 1), 2.5), math.radians(180), math.radians(360)), False)
sketch15.addGeometry(Part.LineSegment(App.Vector(27.9, 12.7, 0), App.Vector(27.9, 34.9, 0)), False)
sketch15.addGeometry(Part.ArcOfCircle(Part.Circle(App.Vector(38.1, 34.9, 0), App.Vector(0, 0, 1), 2.5), math.radians(0), math.radians(180)), False)
sketch15.addGeometry(Part.LineSegment(App.Vector(35.6, 34.9, 0), App.Vector(35.6, 12.7, 0)), False)
sketch15.addGeometry(Part.ArcOfCircle(Part.Circle(App.Vector(38.1, 12.7, 0), App.Vector(0, 0, 1), 2.5), math.radians(180), math.radians(360)), False)
sketch15.addGeometry(Part.LineSegment(App.Vector(40.6, 12.7, 0), App.Vector(40.6, 34.9, 0)), False)
sketch15.addGeometry(Part.ArcOfCircle(Part.Circle(App.Vector(-12.7, 34.9, 0), App.Vector(0, 0, 1), 2.5), math.radians(0), math.radians(180)), False)
sketch15.addGeometry(Part.LineSegment(App.Vector(-15.2, 34.9, 0), App.Vector(-15.2, 12.7, 0)), False)
sketch15.addGeometry(Part.ArcOfCircle(Part.Circle(App.Vector(-12.7, 12.7, 0), App.Vector(0, 0, 1), 2.5), math.radians(180), math.radians(360)), False)
sketch15.addGeometry(Part.LineSegment(App.Vector(-10.2, 12.7, 0), App.Vector(-10.2, 34.9, 0)), False)
sketch15.addGeometry(Part.ArcOfCircle(Part.Circle(App.Vector(-25.4, 34.9, 0), App.Vector(0, 0, 1), 2.5), math.radians(0), math.radians(180)), False)
sketch15.addGeometry(Part.LineSegment(App.Vector(-27.9, 34.9, 0), App.Vector(-27.9, 12.7, 0)), False)
sketch15.addGeometry(Part.ArcOfCircle(Part.Circle(App.Vector(-25.4, 12.7, 0), App.Vector(0, 0, 1), 2.5), math.radians(180), math.radians(360)), False)
sketch15.addGeometry(Part.LineSegment(App.Vector(-22.9, 12.7, 0), App.Vector(-22.9, 34.9, 0)), False)
sketch15.addGeometry(Part.ArcOfCircle(Part.Circle(App.Vector(-38.1, 34.9, 0), App.Vector(0, 0, 1), 2.5), math.radians(0), math.radians(180)), False)
sketch15.addGeometry(Part.LineSegment(App.Vector(-40.6, 34.9, 0), App.Vector(-40.6, 12.7, 0)), False)
sketch15.addGeometry(Part.ArcOfCircle(Part.Circle(App.Vector(-38.1, 12.7, 0), App.Vector(0, 0, 1), 2.5), math.radians(180), math.radians(360)), False)
sketch15.addGeometry(Part.LineSegment(App.Vector(-35.6, 12.7, 0), App.Vector(-35.6, 34.9, 0)), False)
sketch15.addConstraint(Sketcher.Constraint("Tangent", 0, 2, 1, 1))
sketch15.addConstraint(Sketcher.Constraint("Tangent", 1, 2, 2, 1))
sketch15.addConstraint(Sketcher.Constraint("Tangent", 2, 2, 3, 1))
sketch15.addConstraint(Sketcher.Constraint("Tangent", 3, 2, 0, 1))
sketch15.addConstraint(Sketcher.Constraint("Tangent", 4, 2, 5, 1))
sketch15.addConstraint(Sketcher.Constraint("Tangent", 5, 2, 6, 1))
sketch15.addConstraint(Sketcher.Constraint("Tangent", 6, 2, 7, 1))
sketch15.addConstraint(Sketcher.Constraint("Tangent", 7, 2, 4, 1))
sketch15.addConstraint(Sketcher.Constraint("Tangent", 8, 2, 9, 1))
sketch15.addConstraint(Sketcher.Constraint("Tangent", 9, 2, 10, 1))
sketch15.addConstraint(Sketcher.Constraint("Tangent", 10, 2, 11, 1))
sketch15.addConstraint(Sketcher.Constraint("Tangent", 11, 2, 8, 1))
sketch15.addConstraint(Sketcher.Constraint("Tangent", 12, 2, 13, 1))
sketch15.addConstraint(Sketcher.Constraint("Tangent", 13, 2, 14, 1))
sketch15.addConstraint(Sketcher.Constraint("Tangent", 14, 2, 15, 1))
sketch15.addConstraint(Sketcher.Constraint("Tangent", 15, 2, 12, 1))
sketch15.addConstraint(Sketcher.Constraint("Tangent", 16, 2, 17, 1))
sketch15.addConstraint(Sketcher.Constraint("Tangent", 17, 2, 18, 1))
sketch15.addConstraint(Sketcher.Constraint("Tangent", 18, 2, 19, 1))
sketch15.addConstraint(Sketcher.Constraint("Tangent", 19, 2, 16, 1))
sketch15.addConstraint(Sketcher.Constraint("Tangent", 20, 2, 21, 1))
sketch15.addConstraint(Sketcher.Constraint("Tangent", 21, 2, 22, 1))
sketch15.addConstraint(Sketcher.Constraint("Tangent", 22, 2, 23, 1))
sketch15.addConstraint(Sketcher.Constraint("Tangent", 23, 2, 20, 1))
sketch15.addConstraint(Sketcher.Constraint("Tangent", 24, 2, 25, 1))
sketch15.addConstraint(Sketcher.Constraint("Tangent", 25, 2, 26, 1))
sketch15.addConstraint(Sketcher.Constraint("Tangent", 26, 2, 27, 1))
sketch15.addConstraint(Sketcher.Constraint("Tangent", 27, 2, 24, 1))
sketch15.addConstraint(Sketcher.Constraint("Vertical", 1))
sketch15.addConstraint(Sketcher.Constraint("Vertical", 3))
sketch15.addConstraint(Sketcher.Constraint("Vertical", 5))
sketch15.addConstraint(Sketcher.Constraint("Vertical", 7))
sketch15.addConstraint(Sketcher.Constraint("Vertical", 9))
sketch15.addConstraint(Sketcher.Constraint("Vertical", 11))
sketch15.addConstraint(Sketcher.Constraint("Vertical", 13))
sketch15.addConstraint(Sketcher.Constraint("Vertical", 15))
sketch15.addConstraint(Sketcher.Constraint("Vertical", 17))
sketch15.addConstraint(Sketcher.Constraint("Vertical", 19))
sketch15.addConstraint(Sketcher.Constraint("Vertical", 21))
sketch15.addConstraint(Sketcher.Constraint("Vertical", 23))
sketch15.addConstraint(Sketcher.Constraint("Vertical", 25))
sketch15.addConstraint(Sketcher.Constraint("Vertical", 27))
sketch15.addConstraint(Sketcher.Constraint("Equal", 2, 4))
sketch15.addConstraint(Sketcher.Constraint("Equal", 6, 8))
sketch15.addConstraint(Sketcher.Constraint("Equal", 10, 12))
sketch15.addConstraint(Sketcher.Constraint("Equal", 14, 16))
sketch15.addConstraint(Sketcher.Constraint("Equal", 18, 20))
sketch15.addConstraint(Sketcher.Constraint("Equal", 22, 24))
sketch15.addConstraint(Sketcher.Constraint("Symmetric", 4, 3, 16, 3, -2))
sketch15.addConstraint(Sketcher.Constraint("Symmetric", 8, 3, 20, 3, -2))
sketch15.addConstraint(Sketcher.Constraint("Symmetric", 12, 3, 24, 3, -2))
sketch15.addConstraint(Sketcher.Constraint("PointOnObject", 0, 3, -2))
sketch15.addConstraint(Sketcher.Constraint("Horizontal", 0, 3, 4, 3))
sketch15.addConstraint(Sketcher.Constraint("Horizontal", 2, 3, 6, 3))
sketch15.addConstraint(Sketcher.Constraint("Horizontal", 4, 3, 8, 3))
sketch15.addConstraint(Sketcher.Constraint("Horizontal", 6, 3, 10, 3))
sketch15.addConstraint(Sketcher.Constraint("Horizontal", 8, 3, 12, 3))
sketch15.addConstraint(Sketcher.Constraint("Horizontal", 10, 3, 14, 3))
sketch15.addConstraint(Sketcher.Constraint("Horizontal", 14, 3, 18, 3))
sketch15.addConstraint(Sketcher.Constraint("Horizontal", 18, 3, 22, 3))
sketch15.addConstraint(Sketcher.Constraint("Horizontal", 22, 3, 26, 3))
sketch15.addConstraint(Sketcher.Constraint("Radius", 0, Q("0.1 in")))
sketch15.addConstraint(Sketcher.Constraint("DistanceY", -1, 1, 2, 3, Q("0.5 in")))
sketch15.addConstraint(Sketcher.Constraint("DistanceX", -1, 1, 4, 3, Q("0.5 in")))
sketch15.addConstraint(Sketcher.Constraint("DistanceX", 4, 3, 8, 3, Q("0.5 in")))
sketch15.addConstraint(Sketcher.Constraint("DistanceX", 8, 3, 12, 3, Q("0.5 in")))
sketch15.addConstraint(Sketcher.Constraint("DistanceY", 1, 2, 1, 1, Q("0.875 in")))
pocket9 = body.newObject("PartDesign::Pocket", "Pocket008")
pocket9.Profile = sketch15
pocket9.Length = Q("0.125 in")

sketch16 = body.newObject("Sketcher::SketchObject", "Sketch015")
sketch16.AttachmentSupport = (doc.getObject("YZ_Plane"), [""])
sketch16.MapMode = "FlatFace"
sketch16.AttachmentOffset = App.Placement(App.Vector(0, 0, -4.0104921 * 25.4), App.Rotation())
sketch16.addGeometry(Part.ArcOfCircle(Part.Circle(App.Vector(-12.7, 34.9, 0), App.Vector(0, 0, 1), 2.5), math.radians(0), math.radians(180)), False)
sketch16.addGeometry(Part.LineSegment(App.Vector(-10.2, 34.9, 0), App.Vector(-10.2, 12.7, 0)), False)
sketch16.addGeometry(Part.ArcOfCircle(Part.Circle(App.Vector(-12.7, 12.7, 0), App.Vector(0, 0, 1), 2.5), math.radians(180), math.radians(360)), False)
sketch16.addGeometry(Part.LineSegment(App.Vector(-15.2, 12.7, 0), App.Vector(-15.2, 34.9, 0)), False)
sketch16.addGeometry(Part.ArcOfCircle(Part.Circle(App.Vector(-38.1, 34.9, 0), App.Vector(0, 0, 1), 2.5), math.radians(0), math.radians(180)), False)
sketch16.addGeometry(Part.LineSegment(App.Vector(-35.6, 34.9, 0), App.Vector(-35.6, 12.7, 0)), False)
sketch16.addGeometry(Part.ArcOfCircle(Part.Circle(App.Vector(-38.1, 12.7, 0), App.Vector(0, 0, 1), 2.5), math.radians(180), math.radians(360)), False)
sketch16.addGeometry(Part.LineSegment(App.Vector(-40.6, 12.7, 0), App.Vector(-40.6, 34.9, 0)), False)
sketch16.addGeometry(Part.LineSegment(App.Vector(10.2, 12.7, 0), App.Vector(10.2, 34.9, 0)), False)
sketch16.addGeometry(Part.ArcOfCircle(Part.Circle(App.Vector(12.7, 34.9, 0), App.Vector(0, 0, 1), 2.5), math.radians(0), math.radians(180)), False)
sketch16.addGeometry(Part.LineSegment(App.Vector(15.2, 34.9, 0), App.Vector(15.2, 12.7, 0)), False)
sketch16.addGeometry(Part.ArcOfCircle(Part.Circle(App.Vector(12.7, 12.7, 0), App.Vector(0, 0, 1), 2.5), math.radians(180), math.radians(360)), False)
sketch16.addGeometry(Part.ArcOfCircle(Part.Circle(App.Vector(25.4, 12.7, 0), App.Vector(0, 0, 1), 2.5), math.radians(180), math.radians(360)), False)
sketch16.addGeometry(Part.LineSegment(App.Vector(22.9, 12.7, 0), App.Vector(22.9, 34.9, 0)), False)
sketch16.addGeometry(Part.ArcOfCircle(Part.Circle(App.Vector(25.4, 34.9, 0), App.Vector(0, 0, 1), 2.5), math.radians(0), math.radians(180)), False)
sketch16.addGeometry(Part.LineSegment(App.Vector(27.9, 34.9, 0), App.Vector(27.9, 12.7, 0)), False)
sketch16.addGeometry(Part.ArcOfCircle(Part.Circle(App.Vector(-25.4, 34.9, 0), App.Vector(0, 0, 1), 2.5), math.radians(0), math.radians(180)), False)
sketch16.addGeometry(Part.LineSegment(App.Vector(-22.9, 34.9, 0), App.Vector(-22.9, 12.7, 0)), False)
sketch16.addGeometry(Part.ArcOfCircle(Part.Circle(App.Vector(-25.4, 12.7, 0), App.Vector(0, 0, 1), 2.5), math.radians(180), math.radians(360)), False)
sketch16.addGeometry(Part.LineSegment(App.Vector(-27.9, 12.7, 0), App.Vector(-27.9, 34.9, 0)), False)
sketch16.addGeometry(Part.ArcOfCircle(Part.Circle(App.Vector(0, 12.7, 0), App.Vector(0, 0, 1), 2.5), math.radians(180), math.radians(360)), False)
sketch16.addGeometry(Part.LineSegment(App.Vector(-2.5, 12.7, 0), App.Vector(-2.5, 34.9, 0)), False)
sketch16.addGeometry(Part.ArcOfCircle(Part.Circle(App.Vector(0, 34.9, 0), App.Vector(0, 0, 1), 2.5), math.radians(0), math.radians(180)), False)
sketch16.addGeometry(Part.LineSegment(App.Vector(2.5, 34.9, 0), App.Vector(2.5, 12.7, 0)), False)
sketch16.addGeometry(Part.ArcOfCircle(Part.Circle(App.Vector(38.1, 12.7, 0), App.Vector(0, 0, 1), 2.5), math.radians(180), math.radians(360)), False)
sketch16.addGeometry(Part.LineSegment(App.Vector(35.6, 12.7, 0), App.Vector(35.6, 34.9, 0)), False)
sketch16.addGeometry(Part.ArcOfCircle(Part.Circle(App.Vector(38.1, 34.9, 0), App.Vector(0, 0, 1), 2.5), math.radians(0), math.radians(180)), False)
sketch16.addGeometry(Part.LineSegment(App.Vector(40.6, 34.9, 0), App.Vector(40.6, 12.7, 0)), False)
sketch16.addConstraint(Sketcher.Constraint("Tangent", 0, 1, 1, 1))
sketch16.addConstraint(Sketcher.Constraint("Tangent", 1, 2, 2, 2))
sketch16.addConstraint(Sketcher.Constraint("Tangent", 2, 1, 3, 1))
sketch16.addConstraint(Sketcher.Constraint("Tangent", 3, 2, 0, 2))
sketch16.addConstraint(Sketcher.Constraint("Tangent", 4, 1, 5, 1))
sketch16.addConstraint(Sketcher.Constraint("Tangent", 5, 2, 6, 2))
sketch16.addConstraint(Sketcher.Constraint("Tangent", 6, 1, 7, 1))
sketch16.addConstraint(Sketcher.Constraint("Tangent", 7, 2, 4, 2))
sketch16.addConstraint(Sketcher.Constraint("Tangent", 8, 2, 9, 2))
sketch16.addConstraint(Sketcher.Constraint("Tangent", 9, 1, 10, 1))
sketch16.addConstraint(Sketcher.Constraint("Tangent", 10, 2, 11, 2))
sketch16.addConstraint(Sketcher.Constraint("Tangent", 11, 1, 8, 1))
sketch16.addConstraint(Sketcher.Constraint("Tangent", 12, 1, 13, 1))
sketch16.addConstraint(Sketcher.Constraint("Tangent", 13, 2, 14, 2))
sketch16.addConstraint(Sketcher.Constraint("Tangent", 14, 1, 15, 1))
sketch16.addConstraint(Sketcher.Constraint("Tangent", 15, 2, 12, 2))
sketch16.addConstraint(Sketcher.Constraint("Tangent", 16, 1, 17, 1))
sketch16.addConstraint(Sketcher.Constraint("Tangent", 17, 2, 18, 2))
sketch16.addConstraint(Sketcher.Constraint("Tangent", 18, 1, 19, 1))
sketch16.addConstraint(Sketcher.Constraint("Tangent", 19, 2, 16, 2))
sketch16.addConstraint(Sketcher.Constraint("Tangent", 20, 1, 21, 1))
sketch16.addConstraint(Sketcher.Constraint("Tangent", 21, 2, 22, 2))
sketch16.addConstraint(Sketcher.Constraint("Tangent", 22, 1, 23, 1))
sketch16.addConstraint(Sketcher.Constraint("Tangent", 23, 2, 20, 2))
sketch16.addConstraint(Sketcher.Constraint("Tangent", 24, 1, 25, 1))
sketch16.addConstraint(Sketcher.Constraint("Tangent", 25, 2, 26, 2))
sketch16.addConstraint(Sketcher.Constraint("Tangent", 26, 1, 27, 1))
sketch16.addConstraint(Sketcher.Constraint("Tangent", 27, 2, 24, 2))
sketch16.addConstraint(Sketcher.Constraint("Vertical", 1))
sketch16.addConstraint(Sketcher.Constraint("Vertical", 3))
sketch16.addConstraint(Sketcher.Constraint("Vertical", 5))
sketch16.addConstraint(Sketcher.Constraint("Vertical", 7))
sketch16.addConstraint(Sketcher.Constraint("Vertical", 8))
sketch16.addConstraint(Sketcher.Constraint("Vertical", 10))
sketch16.addConstraint(Sketcher.Constraint("Vertical", 13))
sketch16.addConstraint(Sketcher.Constraint("Vertical", 15))
sketch16.addConstraint(Sketcher.Constraint("Vertical", 17))
sketch16.addConstraint(Sketcher.Constraint("Vertical", 19))
sketch16.addConstraint(Sketcher.Constraint("Vertical", 21))
sketch16.addConstraint(Sketcher.Constraint("Vertical", 23))
sketch16.addConstraint(Sketcher.Constraint("Vertical", 25))
sketch16.addConstraint(Sketcher.Constraint("Vertical", 27))
sketch16.addConstraint(Sketcher.Constraint("Equal", 2, 4))
sketch16.addConstraint(Sketcher.Constraint("Equal", 6, 9))
sketch16.addConstraint(Sketcher.Constraint("Equal", 11, 12))
sketch16.addConstraint(Sketcher.Constraint("Equal", 14, 16))
sketch16.addConstraint(Sketcher.Constraint("Equal", 18, 20))
sketch16.addConstraint(Sketcher.Constraint("Equal", 22, 24))
sketch16.addConstraint(Sketcher.Constraint("Symmetric", 0, 3, 9, 3, -2))
sketch16.addConstraint(Sketcher.Constraint("Symmetric", 14, 3, 16, 3, -2))
sketch16.addConstraint(Sketcher.Constraint("Symmetric", 6, 3, 24, 3, -2))
sketch16.addConstraint(Sketcher.Constraint("PointOnObject", 20, 3, -2))
sketch16.addConstraint(Sketcher.Constraint("Horizontal", 0, 3, 4, 3))
sketch16.addConstraint(Sketcher.Constraint("Horizontal", 2, 3, 6, 3))
sketch16.addConstraint(Sketcher.Constraint("Horizontal", 6, 3, 11, 3))
sketch16.addConstraint(Sketcher.Constraint("Horizontal", 11, 3, 12, 3))
sketch16.addConstraint(Sketcher.Constraint("Horizontal", 9, 3, 14, 3))
sketch16.addConstraint(Sketcher.Constraint("Horizontal", 12, 3, 18, 3))
sketch16.addConstraint(Sketcher.Constraint("Horizontal", 18, 3, 20, 3))
sketch16.addConstraint(Sketcher.Constraint("Horizontal", 16, 3, 22, 3))
sketch16.addConstraint(Sketcher.Constraint("Horizontal", 22, 3, 26, 3))
sketch16.addConstraint(Sketcher.Constraint("Radius", 0, Q("0.1 in")))
sketch16.addConstraint(Sketcher.Constraint("DistanceX", -1, 1, 12, 3, Q("1 in")))
sketch16.addConstraint(Sketcher.Constraint("DistanceX", 4, 3, 0, 3, Q("1 in")))
sketch16.addConstraint(Sketcher.Constraint("DistanceX", 0, 3, 9, 3, Q("1 in")))
sketch16.addConstraint(Sketcher.Constraint("DistanceY", -1, 1, 2, 3, Q("0.5 in")))
sketch16.addConstraint(Sketcher.Constraint("DistanceY", 1, 2, 1, 1, Q("0.875 in")))
pocket10 = body.newObject("PartDesign::Pocket", "Pocket009")
pocket10.Profile = sketch16
pocket10.Length = Q("0.125 in")
pocket10.Reversed = True

doc.recompute()
